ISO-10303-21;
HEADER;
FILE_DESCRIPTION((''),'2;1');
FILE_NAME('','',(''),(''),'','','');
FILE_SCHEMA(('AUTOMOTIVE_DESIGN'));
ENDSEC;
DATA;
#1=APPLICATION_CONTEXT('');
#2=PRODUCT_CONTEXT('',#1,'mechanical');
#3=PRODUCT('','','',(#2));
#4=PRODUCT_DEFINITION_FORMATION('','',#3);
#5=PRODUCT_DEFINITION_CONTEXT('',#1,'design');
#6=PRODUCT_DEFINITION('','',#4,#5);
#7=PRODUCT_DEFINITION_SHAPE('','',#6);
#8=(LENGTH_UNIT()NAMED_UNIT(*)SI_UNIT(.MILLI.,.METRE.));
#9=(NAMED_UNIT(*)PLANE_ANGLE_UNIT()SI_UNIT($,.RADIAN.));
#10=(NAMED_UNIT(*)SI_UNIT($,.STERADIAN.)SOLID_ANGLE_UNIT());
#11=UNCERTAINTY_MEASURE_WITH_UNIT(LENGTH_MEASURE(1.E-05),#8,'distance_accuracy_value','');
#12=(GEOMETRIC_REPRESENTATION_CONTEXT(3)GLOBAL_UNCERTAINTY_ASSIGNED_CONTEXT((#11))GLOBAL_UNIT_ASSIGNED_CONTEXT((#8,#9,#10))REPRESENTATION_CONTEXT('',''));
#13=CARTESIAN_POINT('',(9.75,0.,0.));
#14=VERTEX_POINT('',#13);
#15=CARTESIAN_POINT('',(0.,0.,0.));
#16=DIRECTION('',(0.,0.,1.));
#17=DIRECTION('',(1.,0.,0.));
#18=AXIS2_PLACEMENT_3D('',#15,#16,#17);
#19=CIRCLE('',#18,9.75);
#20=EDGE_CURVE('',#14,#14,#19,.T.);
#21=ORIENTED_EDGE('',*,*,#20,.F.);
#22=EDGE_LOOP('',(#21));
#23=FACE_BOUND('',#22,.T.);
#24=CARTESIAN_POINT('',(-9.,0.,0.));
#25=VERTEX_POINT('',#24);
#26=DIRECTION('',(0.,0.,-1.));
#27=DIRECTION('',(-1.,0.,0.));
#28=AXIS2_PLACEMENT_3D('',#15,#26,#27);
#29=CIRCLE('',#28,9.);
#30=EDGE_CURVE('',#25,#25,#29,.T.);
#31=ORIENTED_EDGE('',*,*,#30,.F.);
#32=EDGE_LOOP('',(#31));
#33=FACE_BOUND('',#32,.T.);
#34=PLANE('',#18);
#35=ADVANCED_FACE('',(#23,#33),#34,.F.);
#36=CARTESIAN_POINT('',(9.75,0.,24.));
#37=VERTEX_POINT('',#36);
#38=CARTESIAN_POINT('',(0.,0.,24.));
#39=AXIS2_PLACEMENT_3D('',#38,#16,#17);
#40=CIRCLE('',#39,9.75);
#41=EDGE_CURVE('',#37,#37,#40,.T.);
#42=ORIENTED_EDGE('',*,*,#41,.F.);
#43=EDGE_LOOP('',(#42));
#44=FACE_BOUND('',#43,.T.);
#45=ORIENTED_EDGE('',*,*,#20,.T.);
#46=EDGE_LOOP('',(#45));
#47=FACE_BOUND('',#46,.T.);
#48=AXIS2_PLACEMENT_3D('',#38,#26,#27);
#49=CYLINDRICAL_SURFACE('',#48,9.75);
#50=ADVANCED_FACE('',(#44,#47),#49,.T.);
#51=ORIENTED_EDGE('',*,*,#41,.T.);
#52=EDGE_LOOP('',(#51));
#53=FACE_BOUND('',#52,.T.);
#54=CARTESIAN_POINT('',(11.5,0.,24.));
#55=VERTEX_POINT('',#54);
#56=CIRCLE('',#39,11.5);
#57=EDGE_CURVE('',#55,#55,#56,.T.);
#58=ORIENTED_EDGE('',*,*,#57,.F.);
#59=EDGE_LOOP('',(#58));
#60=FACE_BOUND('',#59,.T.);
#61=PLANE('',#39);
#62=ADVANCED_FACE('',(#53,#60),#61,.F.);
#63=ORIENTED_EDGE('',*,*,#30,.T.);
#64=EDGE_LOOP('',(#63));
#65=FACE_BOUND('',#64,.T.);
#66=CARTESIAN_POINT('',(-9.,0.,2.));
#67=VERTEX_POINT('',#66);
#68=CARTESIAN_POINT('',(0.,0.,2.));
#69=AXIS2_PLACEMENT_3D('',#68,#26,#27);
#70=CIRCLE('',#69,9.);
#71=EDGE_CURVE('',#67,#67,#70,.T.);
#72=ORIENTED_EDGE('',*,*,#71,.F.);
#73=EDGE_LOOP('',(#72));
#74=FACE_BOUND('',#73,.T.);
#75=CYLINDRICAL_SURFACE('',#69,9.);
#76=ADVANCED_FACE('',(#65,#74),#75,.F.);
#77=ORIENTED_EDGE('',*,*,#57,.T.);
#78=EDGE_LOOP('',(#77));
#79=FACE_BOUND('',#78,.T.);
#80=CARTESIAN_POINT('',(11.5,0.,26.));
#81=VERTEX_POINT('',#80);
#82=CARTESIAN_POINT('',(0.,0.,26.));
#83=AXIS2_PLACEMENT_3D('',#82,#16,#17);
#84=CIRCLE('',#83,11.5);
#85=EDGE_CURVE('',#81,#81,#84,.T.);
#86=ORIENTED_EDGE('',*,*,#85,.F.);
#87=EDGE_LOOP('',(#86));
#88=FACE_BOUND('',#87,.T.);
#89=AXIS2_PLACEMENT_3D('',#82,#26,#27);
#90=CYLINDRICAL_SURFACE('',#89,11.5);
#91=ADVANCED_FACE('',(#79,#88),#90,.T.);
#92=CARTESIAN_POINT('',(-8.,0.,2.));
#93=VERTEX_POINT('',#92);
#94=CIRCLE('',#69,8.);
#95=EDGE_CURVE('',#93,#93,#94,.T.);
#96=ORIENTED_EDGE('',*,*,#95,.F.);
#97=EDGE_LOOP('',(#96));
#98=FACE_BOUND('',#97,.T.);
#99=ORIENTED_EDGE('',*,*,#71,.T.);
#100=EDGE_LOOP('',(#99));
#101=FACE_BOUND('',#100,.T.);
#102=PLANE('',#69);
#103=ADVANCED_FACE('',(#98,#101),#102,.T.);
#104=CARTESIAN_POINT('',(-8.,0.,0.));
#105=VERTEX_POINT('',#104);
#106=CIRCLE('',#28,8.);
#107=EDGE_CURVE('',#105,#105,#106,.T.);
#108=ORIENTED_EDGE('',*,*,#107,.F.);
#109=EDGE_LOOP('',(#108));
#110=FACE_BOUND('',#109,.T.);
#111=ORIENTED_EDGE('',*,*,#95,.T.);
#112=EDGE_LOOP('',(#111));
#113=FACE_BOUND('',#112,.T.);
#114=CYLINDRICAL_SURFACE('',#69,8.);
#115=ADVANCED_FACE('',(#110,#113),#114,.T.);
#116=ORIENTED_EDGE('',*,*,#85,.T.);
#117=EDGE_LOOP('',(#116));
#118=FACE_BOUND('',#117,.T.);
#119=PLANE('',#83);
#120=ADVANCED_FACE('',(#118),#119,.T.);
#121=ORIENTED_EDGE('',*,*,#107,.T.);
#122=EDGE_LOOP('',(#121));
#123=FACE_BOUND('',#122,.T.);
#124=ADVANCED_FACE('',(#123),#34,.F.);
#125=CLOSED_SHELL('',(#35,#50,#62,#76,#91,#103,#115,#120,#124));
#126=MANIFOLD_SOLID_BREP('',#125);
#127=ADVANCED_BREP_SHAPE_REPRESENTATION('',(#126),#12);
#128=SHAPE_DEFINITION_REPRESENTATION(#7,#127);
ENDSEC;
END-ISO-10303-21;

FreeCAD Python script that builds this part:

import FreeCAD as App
import Part
import Sketcher

V = App.Vector

doc = App.newDocument("Part")
body = doc.addObject("PartDesign::Body", "Body")

sketch1 = body.newObject("Sketcher::SketchObject", "Sketch")
sketch1.AttachmentSupport = (doc.getObject("XY_Plane"), [""])
sketch1.MapMode = "FlatFace"
sketch1.addGeometry(Part.Circle(V(0, 0, 0), V(0, 0, 1), 10), False)
sketch1.addConstraint([
    Sketcher.Constraint("Coincident", 0, 3, -1, 1),
    Sketcher.Constraint("Diameter", 0, 19.5),
])
pad1 = body.newObject("PartDesign::Pad", "Pad")
pad1.Profile = sketch1
pad1.Length = 24

sketch2 = body.newObject("Sketcher::SketchObject", "Sketch001")
sketch2.AttachmentSupport = (doc.getObject("XY_Plane"), [""])
sketch2.MapMode = "FlatFace"
sketch2.AttachmentOffset = App.Placement(V(0, 0, 24), App.Rotation())
sketch2.addGeometry(Part.Circle(V(0, 0, 0), V(0, 0, 1), 12), False)
sketch2.addConstraint([
    Sketcher.Constraint("Coincident", 0, 3, -1, 1),
    Sketcher.Constraint("Diameter", 0, 23.0),
])
pad2 = body.newObject("PartDesign::Pad", "Pad001")
pad2.Profile = sketch2
pad2.Length = 2

sketch3 = body.newObject("Sketcher::SketchObject", "Sketch002")
sketch3.AttachmentSupport = (doc.getObject("XY_Plane"), [""])
sketch3.MapMode = "FlatFace"
sketch3.addGeometry([
    Part.Circle(V(0, 0, 0), V(0, 0, 1), 9),
    Part.Circle(V(0, 0, 0), V(0, 0, 1), 8),
], False)
sketch3.addConstraint([
    Sketcher.Constraint("Coincident", 0, 3, -1, 1),
    Sketcher.Constraint("Coincident", 1, 3, -1, 1),
    Sketcher.Constraint("Diameter", 0, 18.0),
    Sketcher.Constraint("Diameter", 1, 16.0),
])
pocket1 = body.newObject("PartDesign::Pocket", "Pocket")
pocket1.Profile = sketch3
pocket1.Length = 2
pocket1.Reversed = True

doc.recompute()
